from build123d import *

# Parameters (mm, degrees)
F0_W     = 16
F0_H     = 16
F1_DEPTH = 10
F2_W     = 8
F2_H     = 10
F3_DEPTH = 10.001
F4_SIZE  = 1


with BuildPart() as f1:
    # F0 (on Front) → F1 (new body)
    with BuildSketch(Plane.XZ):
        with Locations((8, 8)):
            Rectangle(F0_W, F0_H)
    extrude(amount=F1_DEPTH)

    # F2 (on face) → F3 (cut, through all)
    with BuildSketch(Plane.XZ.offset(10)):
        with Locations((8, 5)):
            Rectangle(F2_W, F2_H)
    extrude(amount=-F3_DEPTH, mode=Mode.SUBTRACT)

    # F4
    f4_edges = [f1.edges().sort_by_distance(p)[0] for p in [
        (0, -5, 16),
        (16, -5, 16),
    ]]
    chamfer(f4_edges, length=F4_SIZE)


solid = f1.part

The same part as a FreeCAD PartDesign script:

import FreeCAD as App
import Part
import Sketcher
from FreeCAD import Vector


def edges_at(feature, points):
    """Names of the edges that pass closest to the given points."""
    edges = feature.Shape.Edges
    near = lambda p: min(range(len(edges)), key=lambda i: edges[i].distToShape(Part.Vertex(*p))[0])
    return sorted({f"Edge{near(p) + 1}" for p in points})


def add_polygon(sketch, points):
    """Adds a closed chain of lines whose ends are joined by coincident constraints."""
    first, n = sketch.GeometryCount, len(points)
    for a, b in zip(points, points[1:] + points[:1]):
        sketch.addGeometry(Part.LineSegment(App.Vector(*a, 0), App.Vector(*b, 0)), False)
    for i in range(n):
        sketch.addConstraint(Sketcher.Constraint("Coincident", first + i, 2, first + (i + 1) % n, 1))

doc = App.newDocument("Part")
body = doc.addObject("PartDesign::Body", "Body")

sketch1 = body.newObject("Sketcher::SketchObject", "Sketch")
sketch1.AttachmentSupport = (doc.getObject("XZ_Plane"), [""])
sketch1.MapMode = "FlatFace"
add_polygon(sketch1, [(0, 16), (0, 0), (16, 0), (16, 16)])
sketch1.addConstraint(Sketcher.Constraint("Vertical", 0))
sketch1.addConstraint(Sketcher.Constraint("Horizontal", 1))
sketch1.addConstraint(Sketcher.Constraint("Vertical", 2))
sketch1.addConstraint(Sketcher.Constraint("Horizontal", 3))
sketch1.addConstraint(Sketcher.Constraint("Coincident", 0, 2, -1, 1))
sketch1.addConstraint(Sketcher.Constraint("Equal", 3, 0))
sketch1.addConstraint(Sketcher.Constraint("DistanceX", 1, 1, 1, 2, 16.0))
pad1 = body.newObject("PartDesign::Pad", "Pad")
pad1.Profile = sketch1
pad1.Length = 10

sketch2 = body.newObject("Sketcher::SketchObject", "Sketch001")
sketch2.AttachmentSupport = (doc.getObject("XZ_Plane"), [""])
sketch2.MapMode = "FlatFace"
sketch2.AttachmentOffset = App.Placement(Vector(0, 0, 10), App.Rotation())
add_polygon(sketch2, [(4, 10), (4, 0), (12, 0), (12, 10)])
sketch2.addConstraint(Sketcher.Constraint("Vertical", 0))
sketch2.addConstraint(Sketcher.Constraint("Horizontal", 1))
sketch2.addConstraint(Sketcher.Constraint("Vertical", 2))
sketch2.addConstraint(Sketcher.Constraint("Horizontal", 3))
sketch2.addConstraint(Sketcher.Constraint("PointOnObject", 0, 2, -1))
sketch2.addConstraint(Sketcher.Constraint("DistanceX", 1, 1, 1, 2, 8.0))
sketch2.addConstraint(Sketcher.Constraint("DistanceY", 0, 2, 0, 1, 10.0))
sketch2.addConstraint(Sketcher.Constraint("DistanceX", -1, 1, 0, 2, 4.0))
pocket1 = body.newObject("PartDesign::Pocket", "Pocket")
pocket1.Profile = sketch2
pocket1.Type = "ThroughAll"
doc.recompute()

chamfer = body.newObject("PartDesign::Chamfer", "Chamfer")
chamfer.Base = (pocket1, edges_at(pocket1, [(0, -5, 16), (16, -5, 16)]))
chamfer.Size = 1

doc.recompute()
